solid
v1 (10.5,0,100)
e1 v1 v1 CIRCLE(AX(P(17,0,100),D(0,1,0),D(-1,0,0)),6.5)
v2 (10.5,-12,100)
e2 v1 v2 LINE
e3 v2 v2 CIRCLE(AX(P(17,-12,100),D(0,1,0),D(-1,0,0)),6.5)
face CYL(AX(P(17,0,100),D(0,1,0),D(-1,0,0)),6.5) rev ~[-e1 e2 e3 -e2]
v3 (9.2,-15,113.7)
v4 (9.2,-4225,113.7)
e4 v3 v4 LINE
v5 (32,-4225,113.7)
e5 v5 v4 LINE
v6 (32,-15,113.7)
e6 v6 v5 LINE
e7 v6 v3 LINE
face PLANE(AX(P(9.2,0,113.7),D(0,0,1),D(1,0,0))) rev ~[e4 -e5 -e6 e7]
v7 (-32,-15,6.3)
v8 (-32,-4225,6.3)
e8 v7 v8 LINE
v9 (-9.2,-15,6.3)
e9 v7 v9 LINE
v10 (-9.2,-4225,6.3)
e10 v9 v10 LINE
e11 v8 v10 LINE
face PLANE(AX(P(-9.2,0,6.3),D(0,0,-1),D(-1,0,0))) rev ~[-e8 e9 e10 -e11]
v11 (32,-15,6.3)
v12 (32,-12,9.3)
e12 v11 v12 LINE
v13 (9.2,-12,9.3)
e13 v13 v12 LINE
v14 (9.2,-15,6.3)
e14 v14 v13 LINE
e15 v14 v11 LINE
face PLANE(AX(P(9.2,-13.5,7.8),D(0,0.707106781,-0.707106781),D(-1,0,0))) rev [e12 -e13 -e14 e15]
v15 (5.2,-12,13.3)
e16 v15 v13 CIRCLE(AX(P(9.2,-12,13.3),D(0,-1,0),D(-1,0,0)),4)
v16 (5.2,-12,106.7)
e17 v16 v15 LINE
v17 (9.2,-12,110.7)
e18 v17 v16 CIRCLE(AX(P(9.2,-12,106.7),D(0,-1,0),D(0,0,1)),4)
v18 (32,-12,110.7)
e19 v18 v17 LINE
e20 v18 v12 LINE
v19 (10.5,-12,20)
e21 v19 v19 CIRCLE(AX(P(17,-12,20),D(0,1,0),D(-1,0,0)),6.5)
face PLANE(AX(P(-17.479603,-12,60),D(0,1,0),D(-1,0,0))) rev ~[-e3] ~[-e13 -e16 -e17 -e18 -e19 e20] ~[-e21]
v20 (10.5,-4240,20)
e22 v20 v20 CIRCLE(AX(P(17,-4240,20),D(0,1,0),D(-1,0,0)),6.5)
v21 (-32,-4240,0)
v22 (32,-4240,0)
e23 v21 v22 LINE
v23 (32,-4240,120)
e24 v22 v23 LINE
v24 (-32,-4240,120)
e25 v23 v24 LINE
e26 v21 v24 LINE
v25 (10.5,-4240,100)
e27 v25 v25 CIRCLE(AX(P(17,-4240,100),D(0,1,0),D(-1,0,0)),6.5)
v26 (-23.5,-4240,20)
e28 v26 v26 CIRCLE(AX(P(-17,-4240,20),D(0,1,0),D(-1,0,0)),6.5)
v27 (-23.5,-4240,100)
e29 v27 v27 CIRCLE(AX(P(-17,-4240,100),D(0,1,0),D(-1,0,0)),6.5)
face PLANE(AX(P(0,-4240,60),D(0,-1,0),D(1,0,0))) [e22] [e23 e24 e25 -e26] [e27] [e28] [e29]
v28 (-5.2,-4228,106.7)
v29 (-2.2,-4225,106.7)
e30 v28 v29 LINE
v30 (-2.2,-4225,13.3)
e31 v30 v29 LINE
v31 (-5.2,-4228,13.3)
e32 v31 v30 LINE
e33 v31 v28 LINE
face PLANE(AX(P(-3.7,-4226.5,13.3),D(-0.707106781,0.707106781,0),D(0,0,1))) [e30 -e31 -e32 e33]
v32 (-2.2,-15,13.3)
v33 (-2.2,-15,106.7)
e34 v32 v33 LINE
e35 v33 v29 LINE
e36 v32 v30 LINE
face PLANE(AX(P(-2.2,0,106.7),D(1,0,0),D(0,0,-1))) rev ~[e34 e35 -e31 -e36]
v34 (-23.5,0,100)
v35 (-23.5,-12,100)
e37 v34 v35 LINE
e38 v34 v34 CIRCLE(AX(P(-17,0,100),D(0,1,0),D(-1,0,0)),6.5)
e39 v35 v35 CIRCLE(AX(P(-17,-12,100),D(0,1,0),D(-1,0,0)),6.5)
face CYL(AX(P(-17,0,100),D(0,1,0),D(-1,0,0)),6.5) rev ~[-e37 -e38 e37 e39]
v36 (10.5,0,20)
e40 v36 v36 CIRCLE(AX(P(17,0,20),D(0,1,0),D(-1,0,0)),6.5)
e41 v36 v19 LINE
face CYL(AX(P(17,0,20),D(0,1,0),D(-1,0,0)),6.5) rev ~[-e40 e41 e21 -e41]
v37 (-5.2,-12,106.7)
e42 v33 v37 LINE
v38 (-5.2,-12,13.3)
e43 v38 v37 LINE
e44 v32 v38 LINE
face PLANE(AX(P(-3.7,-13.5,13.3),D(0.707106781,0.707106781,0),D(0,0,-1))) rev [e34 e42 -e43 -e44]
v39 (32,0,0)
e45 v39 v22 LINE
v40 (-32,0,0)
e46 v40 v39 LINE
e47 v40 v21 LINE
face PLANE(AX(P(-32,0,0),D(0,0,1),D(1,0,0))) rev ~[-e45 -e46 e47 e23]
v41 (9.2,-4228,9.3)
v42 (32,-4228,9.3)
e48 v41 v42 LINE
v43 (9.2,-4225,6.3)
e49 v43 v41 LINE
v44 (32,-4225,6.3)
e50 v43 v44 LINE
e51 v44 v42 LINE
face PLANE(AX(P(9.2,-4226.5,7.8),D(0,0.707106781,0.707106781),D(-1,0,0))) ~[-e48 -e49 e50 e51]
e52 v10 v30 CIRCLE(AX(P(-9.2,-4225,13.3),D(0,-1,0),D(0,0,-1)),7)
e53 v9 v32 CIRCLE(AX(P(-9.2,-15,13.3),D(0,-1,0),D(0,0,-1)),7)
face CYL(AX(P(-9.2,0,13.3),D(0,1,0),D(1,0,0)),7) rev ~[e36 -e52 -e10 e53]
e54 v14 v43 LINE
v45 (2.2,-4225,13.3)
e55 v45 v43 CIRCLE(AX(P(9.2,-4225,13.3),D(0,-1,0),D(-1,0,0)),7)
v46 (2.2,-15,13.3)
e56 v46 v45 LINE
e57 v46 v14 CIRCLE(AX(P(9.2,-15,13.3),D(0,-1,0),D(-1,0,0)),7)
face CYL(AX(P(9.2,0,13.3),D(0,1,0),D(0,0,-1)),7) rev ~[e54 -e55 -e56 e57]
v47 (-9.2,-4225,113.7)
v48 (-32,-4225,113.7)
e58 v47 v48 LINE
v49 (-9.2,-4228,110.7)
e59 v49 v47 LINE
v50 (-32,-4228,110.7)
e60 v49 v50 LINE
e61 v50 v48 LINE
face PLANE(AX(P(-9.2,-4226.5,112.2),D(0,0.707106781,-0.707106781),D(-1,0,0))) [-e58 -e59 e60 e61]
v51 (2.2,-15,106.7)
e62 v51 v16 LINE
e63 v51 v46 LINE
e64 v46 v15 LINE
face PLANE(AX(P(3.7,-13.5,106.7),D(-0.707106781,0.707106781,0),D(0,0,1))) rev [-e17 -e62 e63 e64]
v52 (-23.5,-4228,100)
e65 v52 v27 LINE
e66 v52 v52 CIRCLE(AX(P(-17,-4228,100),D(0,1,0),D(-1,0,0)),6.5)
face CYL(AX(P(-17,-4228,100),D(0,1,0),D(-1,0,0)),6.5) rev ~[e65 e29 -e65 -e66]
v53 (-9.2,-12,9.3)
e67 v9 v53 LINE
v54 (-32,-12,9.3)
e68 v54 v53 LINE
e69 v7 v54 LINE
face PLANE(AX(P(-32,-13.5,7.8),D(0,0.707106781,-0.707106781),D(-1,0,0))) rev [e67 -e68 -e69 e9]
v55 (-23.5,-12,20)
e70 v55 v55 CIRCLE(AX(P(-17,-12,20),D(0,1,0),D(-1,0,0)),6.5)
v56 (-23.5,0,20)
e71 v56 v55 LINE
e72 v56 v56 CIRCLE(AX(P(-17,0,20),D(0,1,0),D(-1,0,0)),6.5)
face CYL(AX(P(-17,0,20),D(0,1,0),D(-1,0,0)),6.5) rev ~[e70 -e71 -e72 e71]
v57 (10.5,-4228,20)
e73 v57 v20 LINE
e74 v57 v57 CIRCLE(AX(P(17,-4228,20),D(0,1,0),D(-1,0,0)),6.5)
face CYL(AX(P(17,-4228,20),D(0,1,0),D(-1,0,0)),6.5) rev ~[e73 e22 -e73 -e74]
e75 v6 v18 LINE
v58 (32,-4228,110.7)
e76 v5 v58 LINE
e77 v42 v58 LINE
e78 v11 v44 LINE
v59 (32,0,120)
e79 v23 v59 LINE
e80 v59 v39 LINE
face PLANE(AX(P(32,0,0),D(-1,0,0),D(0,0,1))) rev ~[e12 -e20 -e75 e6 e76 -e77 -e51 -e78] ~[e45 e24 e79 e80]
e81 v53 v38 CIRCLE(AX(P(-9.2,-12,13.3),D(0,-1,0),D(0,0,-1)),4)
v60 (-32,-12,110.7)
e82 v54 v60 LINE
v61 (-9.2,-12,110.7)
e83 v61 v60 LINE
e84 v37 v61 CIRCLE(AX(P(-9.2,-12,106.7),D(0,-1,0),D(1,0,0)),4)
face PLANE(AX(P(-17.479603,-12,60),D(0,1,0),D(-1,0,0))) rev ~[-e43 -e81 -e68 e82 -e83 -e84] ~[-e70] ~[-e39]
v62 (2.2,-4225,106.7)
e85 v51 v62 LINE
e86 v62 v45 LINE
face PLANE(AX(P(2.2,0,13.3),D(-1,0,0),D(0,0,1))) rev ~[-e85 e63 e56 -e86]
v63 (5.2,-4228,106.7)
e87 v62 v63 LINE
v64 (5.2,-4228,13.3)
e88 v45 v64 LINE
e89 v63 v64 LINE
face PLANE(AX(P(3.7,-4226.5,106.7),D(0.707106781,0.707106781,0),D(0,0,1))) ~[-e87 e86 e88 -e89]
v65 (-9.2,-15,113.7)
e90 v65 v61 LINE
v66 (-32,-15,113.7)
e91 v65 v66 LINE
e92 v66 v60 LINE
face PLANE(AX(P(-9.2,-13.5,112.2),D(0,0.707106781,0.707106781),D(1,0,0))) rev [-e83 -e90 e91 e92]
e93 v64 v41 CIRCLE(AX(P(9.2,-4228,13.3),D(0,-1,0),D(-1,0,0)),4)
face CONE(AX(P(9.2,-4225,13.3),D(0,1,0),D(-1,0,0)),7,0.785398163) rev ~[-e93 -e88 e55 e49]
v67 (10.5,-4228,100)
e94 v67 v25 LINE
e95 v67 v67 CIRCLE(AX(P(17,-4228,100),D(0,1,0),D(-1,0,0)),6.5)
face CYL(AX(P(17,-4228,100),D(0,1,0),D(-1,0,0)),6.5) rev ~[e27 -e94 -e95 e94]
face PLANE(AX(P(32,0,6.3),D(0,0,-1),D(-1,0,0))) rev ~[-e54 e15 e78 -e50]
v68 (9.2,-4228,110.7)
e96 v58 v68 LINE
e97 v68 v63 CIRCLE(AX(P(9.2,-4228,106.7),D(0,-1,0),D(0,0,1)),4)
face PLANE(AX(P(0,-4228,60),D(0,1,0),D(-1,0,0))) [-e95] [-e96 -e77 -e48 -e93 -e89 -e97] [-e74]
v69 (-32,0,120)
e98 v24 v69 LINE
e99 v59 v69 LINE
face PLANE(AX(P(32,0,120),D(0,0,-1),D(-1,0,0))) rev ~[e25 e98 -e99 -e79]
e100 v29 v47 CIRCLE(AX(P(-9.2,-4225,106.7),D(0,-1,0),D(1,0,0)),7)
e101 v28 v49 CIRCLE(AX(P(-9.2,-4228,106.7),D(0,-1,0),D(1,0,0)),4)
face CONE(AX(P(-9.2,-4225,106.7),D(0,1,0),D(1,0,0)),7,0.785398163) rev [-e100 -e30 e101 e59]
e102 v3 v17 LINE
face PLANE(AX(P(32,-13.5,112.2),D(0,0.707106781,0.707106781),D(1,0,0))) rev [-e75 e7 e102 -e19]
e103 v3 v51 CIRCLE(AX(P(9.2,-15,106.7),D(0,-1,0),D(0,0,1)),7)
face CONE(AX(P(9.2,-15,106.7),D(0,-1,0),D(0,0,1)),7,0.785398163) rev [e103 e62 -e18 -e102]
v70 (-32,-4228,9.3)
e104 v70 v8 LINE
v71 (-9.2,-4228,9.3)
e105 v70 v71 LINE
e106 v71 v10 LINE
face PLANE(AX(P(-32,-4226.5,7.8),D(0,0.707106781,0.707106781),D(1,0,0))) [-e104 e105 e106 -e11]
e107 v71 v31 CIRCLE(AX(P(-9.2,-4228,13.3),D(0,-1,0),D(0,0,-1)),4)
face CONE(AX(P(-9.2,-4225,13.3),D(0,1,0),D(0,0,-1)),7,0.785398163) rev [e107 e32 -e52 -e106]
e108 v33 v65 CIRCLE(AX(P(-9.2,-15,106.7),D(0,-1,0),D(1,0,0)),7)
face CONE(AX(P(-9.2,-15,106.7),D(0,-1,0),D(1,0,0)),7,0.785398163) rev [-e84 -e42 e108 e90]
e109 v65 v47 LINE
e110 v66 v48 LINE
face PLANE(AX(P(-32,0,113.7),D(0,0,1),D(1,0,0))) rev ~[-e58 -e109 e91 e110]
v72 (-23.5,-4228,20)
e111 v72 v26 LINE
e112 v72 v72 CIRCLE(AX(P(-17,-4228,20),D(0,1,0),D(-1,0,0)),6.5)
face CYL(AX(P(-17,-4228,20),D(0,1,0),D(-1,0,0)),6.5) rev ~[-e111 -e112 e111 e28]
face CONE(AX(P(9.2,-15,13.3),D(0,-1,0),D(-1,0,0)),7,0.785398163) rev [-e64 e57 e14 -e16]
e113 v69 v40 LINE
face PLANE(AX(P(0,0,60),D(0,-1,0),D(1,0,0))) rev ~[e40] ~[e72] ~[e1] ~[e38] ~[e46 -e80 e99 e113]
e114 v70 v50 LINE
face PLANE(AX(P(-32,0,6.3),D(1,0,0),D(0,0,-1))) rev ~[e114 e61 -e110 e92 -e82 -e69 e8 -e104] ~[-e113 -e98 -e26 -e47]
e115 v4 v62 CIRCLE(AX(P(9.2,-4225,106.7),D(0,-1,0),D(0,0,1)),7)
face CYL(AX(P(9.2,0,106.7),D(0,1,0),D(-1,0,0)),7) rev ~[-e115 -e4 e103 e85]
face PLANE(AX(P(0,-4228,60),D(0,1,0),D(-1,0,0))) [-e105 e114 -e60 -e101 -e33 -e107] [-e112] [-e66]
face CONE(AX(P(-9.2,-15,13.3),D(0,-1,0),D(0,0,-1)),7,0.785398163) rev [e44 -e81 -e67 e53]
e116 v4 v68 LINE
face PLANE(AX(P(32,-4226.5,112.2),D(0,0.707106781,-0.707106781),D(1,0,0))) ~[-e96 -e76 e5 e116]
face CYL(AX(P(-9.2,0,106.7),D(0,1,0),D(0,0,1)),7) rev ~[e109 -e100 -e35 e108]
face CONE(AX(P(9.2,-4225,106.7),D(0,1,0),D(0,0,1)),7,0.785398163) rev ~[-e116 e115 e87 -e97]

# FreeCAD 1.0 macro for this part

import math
import FreeCAD as App
import Part
import Sketcher

V = App.Vector


def edges_at(feature, points):
    """Names of the edges that pass closest to the given points."""
    edges = feature.Shape.Edges
    near = lambda p: min(range(len(edges)), key=lambda i: edges[i].distToShape(Part.Vertex(*p))[0])
    return sorted({f"Edge{near(p) + 1}" for p in points})


def add_polygon(sketch, points):
    """Adds a closed chain of lines whose ends are joined by coincident constraints."""
    first, n = sketch.GeometryCount, len(points)
    for a, b in zip(points, points[1:] + points[:1]):
        sketch.addGeometry(Part.LineSegment(App.Vector(*a, 0), App.Vector(*b, 0)), False)
    for i in range(n):
        sketch.addConstraint(Sketcher.Constraint("Coincident", first + i, 2, first + (i + 1) % n, 1))

doc = App.newDocument("Part")
body = doc.addObject("PartDesign::Body", "Body")

# Sketch on XZ plane
sketch1 = doc.addObject("Sketcher::SketchObject", "Sketch")
body.addObject(sketch1)
sketch1.AttachmentSupport = (doc.XZ_Plane, [""])
sketch1.MapMode = "FlatFace"
sketch1.addGeometry(Part.LineSegment(V(-32, 6.3, 0), V(-32, 0, 0)), False)
sketch1.addGeometry(Part.LineSegment(V(-32, 0, 0), V(32, 0, 0)), False)
sketch1.addGeometry(Part.LineSegment(V(32, 0, 0), V(32, 6.3, 0)), False)
sketch1.addGeometry(Part.LineSegment(V(32, 6.3, 0), V(9.2, 6.3, 0)), False)
sketch1.addGeometry(Part.ArcOfCircle(Part.Circle(V(9.2, 13.3, 0), V(0, 0, 1), 7), math.radians(180), math.radians(270)), False)
sketch1.addGeometry(Part.LineSegment(V(2.2, 13.3, 0), V(2.2, 106.7, 0)), False)
sketch1.addGeometry(Part.ArcOfCircle(Part.Circle(V(9.2, 106.7, 0), V(0, 0, 1), 7), math.radians(90), math.radians(180)), False)
sketch1.addGeometry(Part.LineSegment(V(9.2, 113.7, 0), V(32, 113.7, 0)), False)
sketch1.addGeometry(Part.LineSegment(V(32, 113.7, 0), V(32, 120, 0)), False)
sketch1.addGeometry(Part.LineSegment(V(32, 120, 0), V(-32, 120, 0)), False)
sketch1.addGeometry(Part.LineSegment(V(-32, 120, 0), V(-32, 113.7, 0)), False)
sketch1.addGeometry(Part.LineSegment(V(-32, 113.7, 0), V(-9.2, 113.7, 0)), False)
sketch1.addGeometry(Part.ArcOfCircle(Part.Circle(V(-9.2, 106.7, 0), V(0, 0, 1), 7), math.radians(0), math.radians(90)), False)
sketch1.addGeometry(Part.LineSegment(V(-2.2, 106.7, 0), V(-2.2, 13.3, 0)), False)
sketch1.addGeometry(Part.ArcOfCircle(Part.Circle(V(-9.2, 13.3, 0), V(0, 0, 1), 7), math.radians(-90), math.radians(0)), False)
sketch1.addGeometry(Part.LineSegment(V(-9.2, 6.3, 0), V(-32, 6.3, 0)), False)
sketch1.addConstraint(Sketcher.Constraint("Coincident", 0, 2, 1, 1))
sketch1.addConstraint(Sketcher.Constraint("Coincident", 1, 2, 2, 1))
sketch1.addConstraint(Sketcher.Constraint("Coincident", 2, 2, 3, 1))
sketch1.addConstraint(Sketcher.Constraint("Tangent", 3, 2, 4, 2))
sketch1.addConstraint(Sketcher.Constraint("Tangent", 4, 1, 5, 1))
sketch1.addConstraint(Sketcher.Constraint("Tangent", 5, 2, 6, 2))
sketch1.addConstraint(Sketcher.Constraint("Tangent", 6, 1, 7, 1))
sketch1.addConstraint(Sketcher.Constraint("Coincident", 7, 2, 8, 1))
sketch1.addConstraint(Sketcher.Constraint("Coincident", 8, 2, 9, 1))
sketch1.addConstraint(Sketcher.Constraint("Coincident", 9, 2, 10, 1))
sketch1.addConstraint(Sketcher.Constraint("Coincident", 10, 2, 11, 1))
sketch1.addConstraint(Sketcher.Constraint("Tangent", 11, 2, 12, 2))
sketch1.addConstraint(Sketcher.Constraint("Tangent", 12, 1, 13, 1))
sketch1.addConstraint(Sketcher.Constraint("Tangent", 13, 2, 14, 2))
sketch1.addConstraint(Sketcher.Constraint("Tangent", 14, 1, 15, 1))
sketch1.addConstraint(Sketcher.Constraint("Coincident", 15, 2, 0, 1))
sketch1.addConstraint(Sketcher.Constraint("Vertical", 0))
sketch1.addConstraint(Sketcher.Constraint("Horizontal", 1))
sketch1.addConstraint(Sketcher.Constraint("Vertical", 2))
sketch1.addConstraint(Sketcher.Constraint("Horizontal", 3))
sketch1.addConstraint(Sketcher.Constraint("Vertical", 5))
sketch1.addConstraint(Sketcher.Constraint("Horizontal", 7))
sketch1.addConstraint(Sketcher.Constraint("Vertical", 8))
sketch1.addConstraint(Sketcher.Constraint("Horizontal", 9))
sketch1.addConstraint(Sketcher.Constraint("Vertical", 10))
sketch1.addConstraint(Sketcher.Constraint("Horizontal", 11))
sketch1.addConstraint(Sketcher.Constraint("Vertical", 13))
sketch1.addConstraint(Sketcher.Constraint("Horizontal", 15))
sketch1.addConstraint(Sketcher.Constraint("Equal", 4, 6))
sketch1.addConstraint(Sketcher.Constraint("Equal", 6, 12))
sketch1.addConstraint(Sketcher.Constraint("Equal", 12, 14))
sketch1.addConstraint(Sketcher.Constraint("Symmetric", 0, 2, 1, 2, -1, 1))
sketch1.addConstraint(Sketcher.Constraint("Symmetric", 6, 3, 12, 3, -2))
sketch1.addConstraint(Sketcher.Constraint("Horizontal", 4, 3, 14, 3))
sketch1.addConstraint(Sketcher.Constraint("Vertical", 2, 2, 7, 2))
sketch1.addConstraint(Sketcher.Constraint("Vertical", 0, 2, 9, 2))
sketch1.addConstraint(Sketcher.Constraint("Equal", 2, 8))
sketch1.addConstraint(Sketcher.Constraint("Radius", 4, 7.0))
sketch1.addConstraint(Sketcher.Constraint("DistanceX", 1, 1, 1, 2, 64.0))
sketch1.addConstraint(Sketcher.Constraint("DistanceX", 3, 2, 3, 1, 22.8))
sketch1.addConstraint(Sketcher.Constraint("DistanceY", 0, 2, 0, 1, 6.3))
sketch1.addConstraint(Sketcher.Constraint("DistanceY", 5, 1, 5, 2, 93.4))
pad1 = doc.addObject("PartDesign::Pad", "Pad")
body.addObject(pad1)
pad1.Profile = sketch1
pad1.Length = 4240

# Sketch on XZ plane
sketch2 = doc.addObject("Sketcher::SketchObject", "Sketch001")
body.addObject(sketch2)
sketch2.AttachmentSupport = (doc.XZ_Plane, [""])
sketch2.MapMode = "FlatFace"
add_polygon(sketch2, [(-32, 120), (32, 120), (32, 0), (-32, 0)])  # lines 0-3
sketch2.addGeometry(Part.Circle(V(-17, 20, 0), V(0, 0, 1), 6.5), False)  # 4
sketch2.addGeometry(Part.Circle(V(-17, 100, 0), V(0, 0, 1), 6.5), False)  # 5
sketch2.addGeometry(Part.Circle(V(17, 20, 0), V(0, 0, 1), 6.5), False)  # 6
sketch2.addGeometry(Part.Circle(V(17, 100, 0), V(0, 0, 1), 6.5), False)  # 7
sketch2.addConstraint(Sketcher.Constraint("Horizontal", 0))
sketch2.addConstraint(Sketcher.Constraint("Vertical", 1))
sketch2.addConstraint(Sketcher.Constraint("Horizontal", 2))
sketch2.addConstraint(Sketcher.Constraint("Vertical", 3))
sketch2.addConstraint(Sketcher.Constraint("Equal", 4, 5))
sketch2.addConstraint(Sketcher.Constraint("Equal", 5, 6))
sketch2.addConstraint(Sketcher.Constraint("Equal", 6, 7))
sketch2.addConstraint(Sketcher.Constraint("Symmetric", 1, 2, 2, 2, -1, 1))
sketch2.addConstraint(Sketcher.Constraint("Symmetric", 4, 3, 6, 3, -2))
sketch2.addConstraint(Sketcher.Constraint("Symmetric", 5, 3, 7, 3, -2))
sketch2.addConstraint(Sketcher.Constraint("Vertical", 4, 3, 5, 3))
sketch2.addConstraint(Sketcher.Constraint("Diameter", 4, 13.0))
sketch2.addConstraint(Sketcher.Constraint("DistanceX", 0, 1, 0, 2, 64.0))
sketch2.addConstraint(Sketcher.Constraint("DistanceY", 1, 2, 1, 1, 120.0))
sketch2.addConstraint(Sketcher.Constraint("DistanceX", 4, 3, -1, 1, 17.0))
sketch2.addConstraint(Sketcher.Constraint("DistanceY", -1, 1, 4, 3, 20.0))
sketch2.addConstraint(Sketcher.Constraint("DistanceY", -1, 1, 5, 3, 100.0))
pad2 = doc.addObject("PartDesign::Pad", "Pad001")
body.addObject(pad2)
pad2.Profile = sketch2
pad2.Length = 12
doc.recompute()

chamfer = doc.addObject("PartDesign::Chamfer", "Chamfer")
body.addObject(chamfer)
chamfer.Base = (pad2, edges_at(pad2, [
    (20.6, -12, 113.7),
    (4.25, -12, 111.65),
    (2.2, -12, 60),
    (4.25, -12, 8.35),
    (20.6, -12, 6.3),
]))
chamfer.Size = 3
doc.recompute()

chamfer2 = doc.addObject("PartDesign::Chamfer", "Chamfer001")
body.addObject(chamfer2)
chamfer2.Base = (chamfer, edges_at(chamfer, [
    (-20.6, -12, 6.3),
    (-4.25, -12, 8.35),
    (-2.2, -12, 60),
    (-4.25, -12, 111.65),
    (-20.6, -12, 113.7),
]))
chamfer2.Size = 3

# Sketch on XZ plane
sketch3 = doc.addObject("Sketcher::SketchObject", "Sketch002")
body.addObject(sketch3)
sketch3.AttachmentSupport = (doc.XZ_Plane, [""])
sketch3.MapMode = "FlatFace"
sketch3.AttachmentOffset = App.Placement(V(0, 0, 4228), App.Rotation())
add_polygon(sketch3, [(32, 120), (32, 0), (-32, 0), (-32, 120)])  # lines 0-3
sketch3.addGeometry(Part.Circle(V(17, 20, 0), V(0, 0, 1), 6.5), False)  # 4
sketch3.addGeometry(Part.Circle(V(-17, 20, 0), V(0, 0, 1), 6.5), False)  # 5
sketch3.addGeometry(Part.Circle(V(17, 100, 0), V(0, 0, 1), 6.5), False)  # 6
sketch3.addGeometry(Part.Circle(V(-17, 100, 0), V(0, 0, 1), 6.5), False)  # 7
sketch3.addConstraint(Sketcher.Constraint("Vertical", 0))
sketch3.addConstraint(Sketcher.Constraint("Horizontal", 1))
sketch3.addConstraint(Sketcher.Constraint("Vertical", 2))
sketch3.addConstraint(Sketcher.Constraint("Horizontal", 3))
sketch3.addConstraint(Sketcher.Constraint("Equal", 4, 5))
sketch3.addConstraint(Sketcher.Constraint("Equal", 5, 6))
sketch3.addConstraint(Sketcher.Constraint("Equal", 6, 7))
sketch3.addConstraint(Sketcher.Constraint("Symmetric", 0, 2, 1, 2, -1, 1))
sketch3.addConstraint(Sketcher.Constraint("Symmetric", 4, 3, 5, 3, -2))
sketch3.addConstraint(Sketcher.Constraint("Symmetric", 6, 3, 7, 3, -2))
sketch3.addConstraint(Sketcher.Constraint("Vertical", 4, 3, 6, 3))
sketch3.addConstraint(Sketcher.Constraint("Diameter", 4, 13.0))
sketch3.addConstraint(Sketcher.Constraint("DistanceX", 1, 2, 1, 1, 64.0))
sketch3.addConstraint(Sketcher.Constraint("DistanceY", 0, 2, 0, 1, 120.0))
sketch3.addConstraint(Sketcher.Constraint("DistanceX", -1, 1, 4, 3, 17.0))
sketch3.addConstraint(Sketcher.Constraint("DistanceY", -1, 1, 4, 3, 20.0))
sketch3.addConstraint(Sketcher.Constraint("DistanceY", -1, 1, 6, 3, 100.0))
pad3 = doc.addObject("PartDesign::Pad", "Pad002")
body.addObject(pad3)
pad3.Profile = sketch3
pad3.Length = 12
doc.recompute()

chamfer3 = doc.addObject("PartDesign::Chamfer", "Chamfer002")
body.addObject(chamfer3)
chamfer3.Base = (pad3, edges_at(pad3, [
    (20.6, -4228, 113.7),
    (4.25, -4228, 111.65),
    (2.2, -4228, 60),
    (4.25, -4228, 8.35),
    (20.6, -4228, 6.3),
]))
chamfer3.Size = 3
doc.recompute()

chamfer4 = doc.addObject("PartDesign::Chamfer", "Chamfer003")
body.addObject(chamfer4)
chamfer4.Base = (chamfer3, edges_at(chamfer3, [
    (-20.6, -4228, 113.7),
    (-4.25, -4228, 111.65),
    (-2.2, -4228, 60),
    (-4.25, -4228, 8.35),
    (-20.6, -4228, 6.3),
]))
chamfer4.Size = 3

doc.recompute()
